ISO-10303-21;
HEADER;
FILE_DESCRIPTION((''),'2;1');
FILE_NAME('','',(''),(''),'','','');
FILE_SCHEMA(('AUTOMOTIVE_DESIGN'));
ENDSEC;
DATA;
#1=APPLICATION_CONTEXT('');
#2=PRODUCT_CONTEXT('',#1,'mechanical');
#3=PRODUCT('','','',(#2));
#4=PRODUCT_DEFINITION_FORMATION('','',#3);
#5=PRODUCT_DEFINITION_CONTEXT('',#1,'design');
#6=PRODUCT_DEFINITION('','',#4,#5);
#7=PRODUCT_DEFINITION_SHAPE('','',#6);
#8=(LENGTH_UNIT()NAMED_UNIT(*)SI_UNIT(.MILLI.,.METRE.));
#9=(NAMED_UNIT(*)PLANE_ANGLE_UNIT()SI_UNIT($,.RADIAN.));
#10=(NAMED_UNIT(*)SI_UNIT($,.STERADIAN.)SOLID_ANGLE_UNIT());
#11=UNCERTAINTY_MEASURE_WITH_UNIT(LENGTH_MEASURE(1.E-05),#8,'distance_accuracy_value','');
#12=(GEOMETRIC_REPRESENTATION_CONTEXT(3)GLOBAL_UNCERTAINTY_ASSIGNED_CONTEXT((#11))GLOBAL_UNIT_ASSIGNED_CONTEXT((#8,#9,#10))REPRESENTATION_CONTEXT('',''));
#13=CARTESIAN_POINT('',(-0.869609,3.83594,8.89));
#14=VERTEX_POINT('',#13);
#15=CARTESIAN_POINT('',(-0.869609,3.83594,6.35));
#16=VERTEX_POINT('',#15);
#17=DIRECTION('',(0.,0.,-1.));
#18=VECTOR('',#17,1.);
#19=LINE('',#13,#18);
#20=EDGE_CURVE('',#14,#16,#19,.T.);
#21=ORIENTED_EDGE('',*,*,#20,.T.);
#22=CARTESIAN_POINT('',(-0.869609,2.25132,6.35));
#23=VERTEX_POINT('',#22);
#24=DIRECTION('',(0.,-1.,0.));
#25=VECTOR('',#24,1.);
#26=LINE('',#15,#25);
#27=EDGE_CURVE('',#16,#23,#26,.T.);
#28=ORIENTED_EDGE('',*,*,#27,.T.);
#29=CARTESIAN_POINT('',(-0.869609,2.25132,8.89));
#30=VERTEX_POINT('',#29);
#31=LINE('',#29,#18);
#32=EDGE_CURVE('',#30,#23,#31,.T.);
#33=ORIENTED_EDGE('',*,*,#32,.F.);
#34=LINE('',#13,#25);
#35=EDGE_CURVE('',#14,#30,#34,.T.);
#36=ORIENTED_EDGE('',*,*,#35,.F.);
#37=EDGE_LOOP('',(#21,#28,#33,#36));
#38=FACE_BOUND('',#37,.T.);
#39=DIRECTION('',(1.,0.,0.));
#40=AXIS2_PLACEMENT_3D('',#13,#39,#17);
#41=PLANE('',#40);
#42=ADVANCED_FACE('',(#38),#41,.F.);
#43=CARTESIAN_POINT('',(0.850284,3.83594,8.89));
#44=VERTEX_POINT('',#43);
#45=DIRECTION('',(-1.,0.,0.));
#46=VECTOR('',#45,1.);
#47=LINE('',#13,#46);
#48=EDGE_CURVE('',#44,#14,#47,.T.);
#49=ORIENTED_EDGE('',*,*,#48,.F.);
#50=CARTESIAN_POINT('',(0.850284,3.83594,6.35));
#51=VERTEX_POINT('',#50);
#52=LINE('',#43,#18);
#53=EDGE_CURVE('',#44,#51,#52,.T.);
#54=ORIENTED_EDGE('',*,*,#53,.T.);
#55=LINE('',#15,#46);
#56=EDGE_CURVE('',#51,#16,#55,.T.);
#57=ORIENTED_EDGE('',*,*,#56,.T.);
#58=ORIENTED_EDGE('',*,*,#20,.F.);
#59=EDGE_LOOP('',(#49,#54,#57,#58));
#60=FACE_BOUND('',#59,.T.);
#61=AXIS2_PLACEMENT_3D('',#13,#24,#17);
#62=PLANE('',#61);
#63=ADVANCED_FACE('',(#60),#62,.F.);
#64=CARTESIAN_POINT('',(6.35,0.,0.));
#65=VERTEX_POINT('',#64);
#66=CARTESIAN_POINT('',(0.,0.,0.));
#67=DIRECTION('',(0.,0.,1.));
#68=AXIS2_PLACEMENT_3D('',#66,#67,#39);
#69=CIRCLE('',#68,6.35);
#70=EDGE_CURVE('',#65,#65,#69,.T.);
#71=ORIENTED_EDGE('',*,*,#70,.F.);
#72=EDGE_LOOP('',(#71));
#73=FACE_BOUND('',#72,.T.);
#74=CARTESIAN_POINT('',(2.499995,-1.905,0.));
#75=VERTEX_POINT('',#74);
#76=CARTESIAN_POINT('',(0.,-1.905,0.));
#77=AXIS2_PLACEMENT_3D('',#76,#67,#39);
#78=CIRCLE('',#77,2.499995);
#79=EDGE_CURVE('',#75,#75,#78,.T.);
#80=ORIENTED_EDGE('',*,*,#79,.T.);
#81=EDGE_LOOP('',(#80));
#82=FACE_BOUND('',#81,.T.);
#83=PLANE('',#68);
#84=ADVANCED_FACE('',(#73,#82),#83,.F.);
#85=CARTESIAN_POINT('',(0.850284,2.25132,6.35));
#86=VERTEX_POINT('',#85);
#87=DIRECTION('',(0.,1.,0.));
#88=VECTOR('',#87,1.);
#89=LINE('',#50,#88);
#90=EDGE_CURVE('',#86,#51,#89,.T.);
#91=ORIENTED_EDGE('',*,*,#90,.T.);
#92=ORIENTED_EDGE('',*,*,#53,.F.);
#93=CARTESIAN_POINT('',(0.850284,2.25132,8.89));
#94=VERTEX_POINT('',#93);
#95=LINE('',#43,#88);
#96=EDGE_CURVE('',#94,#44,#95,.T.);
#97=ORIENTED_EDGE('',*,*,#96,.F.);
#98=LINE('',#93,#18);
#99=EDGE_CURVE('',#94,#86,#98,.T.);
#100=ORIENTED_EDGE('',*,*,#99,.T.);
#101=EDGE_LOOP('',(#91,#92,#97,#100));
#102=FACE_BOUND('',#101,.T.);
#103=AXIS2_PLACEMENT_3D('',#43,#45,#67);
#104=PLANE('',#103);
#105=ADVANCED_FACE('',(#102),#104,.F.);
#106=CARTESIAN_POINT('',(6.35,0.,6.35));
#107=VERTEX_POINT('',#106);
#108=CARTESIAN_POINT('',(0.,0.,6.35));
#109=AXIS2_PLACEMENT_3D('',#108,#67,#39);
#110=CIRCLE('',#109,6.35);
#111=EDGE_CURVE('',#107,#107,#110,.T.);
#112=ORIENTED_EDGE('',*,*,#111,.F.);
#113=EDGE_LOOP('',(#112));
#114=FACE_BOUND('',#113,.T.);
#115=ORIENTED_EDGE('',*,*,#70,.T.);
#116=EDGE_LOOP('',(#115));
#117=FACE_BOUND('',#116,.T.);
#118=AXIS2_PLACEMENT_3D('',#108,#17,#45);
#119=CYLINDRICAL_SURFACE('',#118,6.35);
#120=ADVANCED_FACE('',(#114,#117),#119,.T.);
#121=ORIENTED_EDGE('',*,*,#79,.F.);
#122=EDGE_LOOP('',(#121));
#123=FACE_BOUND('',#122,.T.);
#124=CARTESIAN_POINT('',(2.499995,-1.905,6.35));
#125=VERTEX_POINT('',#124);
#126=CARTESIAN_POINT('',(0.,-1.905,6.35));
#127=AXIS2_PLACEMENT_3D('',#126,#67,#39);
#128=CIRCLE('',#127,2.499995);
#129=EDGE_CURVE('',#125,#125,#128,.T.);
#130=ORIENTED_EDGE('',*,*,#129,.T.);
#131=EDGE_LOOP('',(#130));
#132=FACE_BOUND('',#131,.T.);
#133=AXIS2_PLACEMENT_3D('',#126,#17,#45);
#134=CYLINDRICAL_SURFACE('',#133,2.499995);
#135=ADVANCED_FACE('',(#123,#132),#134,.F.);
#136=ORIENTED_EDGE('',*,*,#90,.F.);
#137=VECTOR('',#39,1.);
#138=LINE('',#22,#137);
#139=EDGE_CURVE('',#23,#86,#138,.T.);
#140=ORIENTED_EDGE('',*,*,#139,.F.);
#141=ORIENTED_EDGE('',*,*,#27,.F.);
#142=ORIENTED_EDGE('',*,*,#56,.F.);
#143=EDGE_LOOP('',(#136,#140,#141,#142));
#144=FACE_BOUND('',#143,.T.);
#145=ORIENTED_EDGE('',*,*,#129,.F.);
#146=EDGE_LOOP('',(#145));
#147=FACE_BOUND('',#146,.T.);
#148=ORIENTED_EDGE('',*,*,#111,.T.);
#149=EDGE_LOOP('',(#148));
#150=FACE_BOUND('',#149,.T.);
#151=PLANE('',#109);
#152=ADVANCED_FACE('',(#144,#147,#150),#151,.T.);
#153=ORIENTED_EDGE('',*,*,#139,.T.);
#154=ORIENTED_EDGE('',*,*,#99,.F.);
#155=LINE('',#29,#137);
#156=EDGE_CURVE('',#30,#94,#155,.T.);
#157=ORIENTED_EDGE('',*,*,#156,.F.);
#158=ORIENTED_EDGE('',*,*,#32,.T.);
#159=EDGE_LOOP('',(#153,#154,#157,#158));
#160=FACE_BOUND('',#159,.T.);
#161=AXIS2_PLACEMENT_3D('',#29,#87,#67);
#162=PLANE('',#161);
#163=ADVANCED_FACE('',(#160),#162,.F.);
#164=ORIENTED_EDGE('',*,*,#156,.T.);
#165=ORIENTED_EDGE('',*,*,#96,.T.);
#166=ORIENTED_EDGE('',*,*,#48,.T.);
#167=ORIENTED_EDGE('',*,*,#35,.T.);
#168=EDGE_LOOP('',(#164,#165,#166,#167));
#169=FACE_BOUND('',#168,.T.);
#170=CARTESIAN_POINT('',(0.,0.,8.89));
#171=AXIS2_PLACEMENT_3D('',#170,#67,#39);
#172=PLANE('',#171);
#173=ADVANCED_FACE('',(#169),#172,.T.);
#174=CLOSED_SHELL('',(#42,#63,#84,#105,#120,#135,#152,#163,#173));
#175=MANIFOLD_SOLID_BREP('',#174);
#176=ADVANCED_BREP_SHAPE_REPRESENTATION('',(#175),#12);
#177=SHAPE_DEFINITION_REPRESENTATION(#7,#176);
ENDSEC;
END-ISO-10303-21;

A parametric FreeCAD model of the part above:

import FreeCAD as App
import Part
import Sketcher
from FreeCAD import Vector
Q = App.Units.Quantity


def add_polygon(sketch, points):
    """Adds a closed chain of lines whose ends are joined by coincident constraints."""
    first, n = sketch.GeometryCount, len(points)
    for a, b in zip(points, points[1:] + points[:1]):
        sketch.addGeometry(Part.LineSegment(App.Vector(*a, 0), App.Vector(*b, 0)), False)
    for i in range(n):
        sketch.addConstraint(Sketcher.Constraint("Coincident", first + i, 2, first + (i + 1) % n, 1))

doc = App.newDocument("Part")
body = doc.addObject("PartDesign::Body", "Body")

sketch1 = body.newObject("Sketcher::SketchObject", "Sketch")
sketch1.AttachmentSupport = (doc.getObject("XY_Plane"), [""])
sketch1.MapMode = "FlatFace"
sketch1.addGeometry(Part.Circle(Vector(0, 0, 0), Vector(0, 0, 1), 6.3), False)
sketch1.addGeometry(Part.Circle(Vector(0, -1.9, 0), Vector(0, 0, 1), 2.5), False)
sketch1.addConstraint(Sketcher.Constraint("Coincident", 0, 3, -1, 1))
sketch1.addConstraint(Sketcher.Constraint("PointOnObject", 1, 3, -2))
sketch1.addConstraint(Sketcher.Constraint("Diameter", 0, Q("0.5 in")))
sketch1.addConstraint(Sketcher.Constraint("Diameter", 1, Q("4.99999 mm")))
sketch1.addConstraint(Sketcher.Constraint("DistanceY", 1, 3, -1, 1, Q("0.075 in")))
pad1 = body.newObject("PartDesign::Pad", "Pad")
pad1.Profile = sketch1
pad1.Length = Q("0.25 in")

sketch2 = body.newObject("Sketcher::SketchObject", "Sketch001")
sketch2.AttachmentSupport = (doc.getObject("XY_Plane"), [""])
sketch2.MapMode = "FlatFace"
sketch2.AttachmentOffset = App.Placement(Vector(0, 0, 0.25 * 25.4), App.Rotation())
add_polygon(sketch2, [(-0.9, 3.8), (-0.9, 2.3), (0.9, 2.3), (0.9, 3.8)])
sketch2.addConstraint(Sketcher.Constraint("Vertical", 0))
sketch2.addConstraint(Sketcher.Constraint("Horizontal", 1))
sketch2.addConstraint(Sketcher.Constraint("Vertical", 2))
sketch2.addConstraint(Sketcher.Constraint("Horizontal", 3))
sketch2.addConstraint(Sketcher.Constraint("DistanceY", 0, 2, 0, 1, Q("1.58462 mm")))
sketch2.addConstraint(Sketcher.Constraint("DistanceX", 1, 1, 1, 2, Q("1.719893 mm")))
sketch2.addConstraint(Sketcher.Constraint("DistanceX", 0, 2, -1, 1, Q("0.869609 mm")))
sketch2.addConstraint(Sketcher.Constraint("DistanceY", -1, 1, 0, 2, Q("2.25132 mm")))
pad2 = body.newObject("PartDesign::Pad", "Pad001")
pad2.Profile = sketch2
pad2.Length = Q("0.1 in")

doc.recompute()
